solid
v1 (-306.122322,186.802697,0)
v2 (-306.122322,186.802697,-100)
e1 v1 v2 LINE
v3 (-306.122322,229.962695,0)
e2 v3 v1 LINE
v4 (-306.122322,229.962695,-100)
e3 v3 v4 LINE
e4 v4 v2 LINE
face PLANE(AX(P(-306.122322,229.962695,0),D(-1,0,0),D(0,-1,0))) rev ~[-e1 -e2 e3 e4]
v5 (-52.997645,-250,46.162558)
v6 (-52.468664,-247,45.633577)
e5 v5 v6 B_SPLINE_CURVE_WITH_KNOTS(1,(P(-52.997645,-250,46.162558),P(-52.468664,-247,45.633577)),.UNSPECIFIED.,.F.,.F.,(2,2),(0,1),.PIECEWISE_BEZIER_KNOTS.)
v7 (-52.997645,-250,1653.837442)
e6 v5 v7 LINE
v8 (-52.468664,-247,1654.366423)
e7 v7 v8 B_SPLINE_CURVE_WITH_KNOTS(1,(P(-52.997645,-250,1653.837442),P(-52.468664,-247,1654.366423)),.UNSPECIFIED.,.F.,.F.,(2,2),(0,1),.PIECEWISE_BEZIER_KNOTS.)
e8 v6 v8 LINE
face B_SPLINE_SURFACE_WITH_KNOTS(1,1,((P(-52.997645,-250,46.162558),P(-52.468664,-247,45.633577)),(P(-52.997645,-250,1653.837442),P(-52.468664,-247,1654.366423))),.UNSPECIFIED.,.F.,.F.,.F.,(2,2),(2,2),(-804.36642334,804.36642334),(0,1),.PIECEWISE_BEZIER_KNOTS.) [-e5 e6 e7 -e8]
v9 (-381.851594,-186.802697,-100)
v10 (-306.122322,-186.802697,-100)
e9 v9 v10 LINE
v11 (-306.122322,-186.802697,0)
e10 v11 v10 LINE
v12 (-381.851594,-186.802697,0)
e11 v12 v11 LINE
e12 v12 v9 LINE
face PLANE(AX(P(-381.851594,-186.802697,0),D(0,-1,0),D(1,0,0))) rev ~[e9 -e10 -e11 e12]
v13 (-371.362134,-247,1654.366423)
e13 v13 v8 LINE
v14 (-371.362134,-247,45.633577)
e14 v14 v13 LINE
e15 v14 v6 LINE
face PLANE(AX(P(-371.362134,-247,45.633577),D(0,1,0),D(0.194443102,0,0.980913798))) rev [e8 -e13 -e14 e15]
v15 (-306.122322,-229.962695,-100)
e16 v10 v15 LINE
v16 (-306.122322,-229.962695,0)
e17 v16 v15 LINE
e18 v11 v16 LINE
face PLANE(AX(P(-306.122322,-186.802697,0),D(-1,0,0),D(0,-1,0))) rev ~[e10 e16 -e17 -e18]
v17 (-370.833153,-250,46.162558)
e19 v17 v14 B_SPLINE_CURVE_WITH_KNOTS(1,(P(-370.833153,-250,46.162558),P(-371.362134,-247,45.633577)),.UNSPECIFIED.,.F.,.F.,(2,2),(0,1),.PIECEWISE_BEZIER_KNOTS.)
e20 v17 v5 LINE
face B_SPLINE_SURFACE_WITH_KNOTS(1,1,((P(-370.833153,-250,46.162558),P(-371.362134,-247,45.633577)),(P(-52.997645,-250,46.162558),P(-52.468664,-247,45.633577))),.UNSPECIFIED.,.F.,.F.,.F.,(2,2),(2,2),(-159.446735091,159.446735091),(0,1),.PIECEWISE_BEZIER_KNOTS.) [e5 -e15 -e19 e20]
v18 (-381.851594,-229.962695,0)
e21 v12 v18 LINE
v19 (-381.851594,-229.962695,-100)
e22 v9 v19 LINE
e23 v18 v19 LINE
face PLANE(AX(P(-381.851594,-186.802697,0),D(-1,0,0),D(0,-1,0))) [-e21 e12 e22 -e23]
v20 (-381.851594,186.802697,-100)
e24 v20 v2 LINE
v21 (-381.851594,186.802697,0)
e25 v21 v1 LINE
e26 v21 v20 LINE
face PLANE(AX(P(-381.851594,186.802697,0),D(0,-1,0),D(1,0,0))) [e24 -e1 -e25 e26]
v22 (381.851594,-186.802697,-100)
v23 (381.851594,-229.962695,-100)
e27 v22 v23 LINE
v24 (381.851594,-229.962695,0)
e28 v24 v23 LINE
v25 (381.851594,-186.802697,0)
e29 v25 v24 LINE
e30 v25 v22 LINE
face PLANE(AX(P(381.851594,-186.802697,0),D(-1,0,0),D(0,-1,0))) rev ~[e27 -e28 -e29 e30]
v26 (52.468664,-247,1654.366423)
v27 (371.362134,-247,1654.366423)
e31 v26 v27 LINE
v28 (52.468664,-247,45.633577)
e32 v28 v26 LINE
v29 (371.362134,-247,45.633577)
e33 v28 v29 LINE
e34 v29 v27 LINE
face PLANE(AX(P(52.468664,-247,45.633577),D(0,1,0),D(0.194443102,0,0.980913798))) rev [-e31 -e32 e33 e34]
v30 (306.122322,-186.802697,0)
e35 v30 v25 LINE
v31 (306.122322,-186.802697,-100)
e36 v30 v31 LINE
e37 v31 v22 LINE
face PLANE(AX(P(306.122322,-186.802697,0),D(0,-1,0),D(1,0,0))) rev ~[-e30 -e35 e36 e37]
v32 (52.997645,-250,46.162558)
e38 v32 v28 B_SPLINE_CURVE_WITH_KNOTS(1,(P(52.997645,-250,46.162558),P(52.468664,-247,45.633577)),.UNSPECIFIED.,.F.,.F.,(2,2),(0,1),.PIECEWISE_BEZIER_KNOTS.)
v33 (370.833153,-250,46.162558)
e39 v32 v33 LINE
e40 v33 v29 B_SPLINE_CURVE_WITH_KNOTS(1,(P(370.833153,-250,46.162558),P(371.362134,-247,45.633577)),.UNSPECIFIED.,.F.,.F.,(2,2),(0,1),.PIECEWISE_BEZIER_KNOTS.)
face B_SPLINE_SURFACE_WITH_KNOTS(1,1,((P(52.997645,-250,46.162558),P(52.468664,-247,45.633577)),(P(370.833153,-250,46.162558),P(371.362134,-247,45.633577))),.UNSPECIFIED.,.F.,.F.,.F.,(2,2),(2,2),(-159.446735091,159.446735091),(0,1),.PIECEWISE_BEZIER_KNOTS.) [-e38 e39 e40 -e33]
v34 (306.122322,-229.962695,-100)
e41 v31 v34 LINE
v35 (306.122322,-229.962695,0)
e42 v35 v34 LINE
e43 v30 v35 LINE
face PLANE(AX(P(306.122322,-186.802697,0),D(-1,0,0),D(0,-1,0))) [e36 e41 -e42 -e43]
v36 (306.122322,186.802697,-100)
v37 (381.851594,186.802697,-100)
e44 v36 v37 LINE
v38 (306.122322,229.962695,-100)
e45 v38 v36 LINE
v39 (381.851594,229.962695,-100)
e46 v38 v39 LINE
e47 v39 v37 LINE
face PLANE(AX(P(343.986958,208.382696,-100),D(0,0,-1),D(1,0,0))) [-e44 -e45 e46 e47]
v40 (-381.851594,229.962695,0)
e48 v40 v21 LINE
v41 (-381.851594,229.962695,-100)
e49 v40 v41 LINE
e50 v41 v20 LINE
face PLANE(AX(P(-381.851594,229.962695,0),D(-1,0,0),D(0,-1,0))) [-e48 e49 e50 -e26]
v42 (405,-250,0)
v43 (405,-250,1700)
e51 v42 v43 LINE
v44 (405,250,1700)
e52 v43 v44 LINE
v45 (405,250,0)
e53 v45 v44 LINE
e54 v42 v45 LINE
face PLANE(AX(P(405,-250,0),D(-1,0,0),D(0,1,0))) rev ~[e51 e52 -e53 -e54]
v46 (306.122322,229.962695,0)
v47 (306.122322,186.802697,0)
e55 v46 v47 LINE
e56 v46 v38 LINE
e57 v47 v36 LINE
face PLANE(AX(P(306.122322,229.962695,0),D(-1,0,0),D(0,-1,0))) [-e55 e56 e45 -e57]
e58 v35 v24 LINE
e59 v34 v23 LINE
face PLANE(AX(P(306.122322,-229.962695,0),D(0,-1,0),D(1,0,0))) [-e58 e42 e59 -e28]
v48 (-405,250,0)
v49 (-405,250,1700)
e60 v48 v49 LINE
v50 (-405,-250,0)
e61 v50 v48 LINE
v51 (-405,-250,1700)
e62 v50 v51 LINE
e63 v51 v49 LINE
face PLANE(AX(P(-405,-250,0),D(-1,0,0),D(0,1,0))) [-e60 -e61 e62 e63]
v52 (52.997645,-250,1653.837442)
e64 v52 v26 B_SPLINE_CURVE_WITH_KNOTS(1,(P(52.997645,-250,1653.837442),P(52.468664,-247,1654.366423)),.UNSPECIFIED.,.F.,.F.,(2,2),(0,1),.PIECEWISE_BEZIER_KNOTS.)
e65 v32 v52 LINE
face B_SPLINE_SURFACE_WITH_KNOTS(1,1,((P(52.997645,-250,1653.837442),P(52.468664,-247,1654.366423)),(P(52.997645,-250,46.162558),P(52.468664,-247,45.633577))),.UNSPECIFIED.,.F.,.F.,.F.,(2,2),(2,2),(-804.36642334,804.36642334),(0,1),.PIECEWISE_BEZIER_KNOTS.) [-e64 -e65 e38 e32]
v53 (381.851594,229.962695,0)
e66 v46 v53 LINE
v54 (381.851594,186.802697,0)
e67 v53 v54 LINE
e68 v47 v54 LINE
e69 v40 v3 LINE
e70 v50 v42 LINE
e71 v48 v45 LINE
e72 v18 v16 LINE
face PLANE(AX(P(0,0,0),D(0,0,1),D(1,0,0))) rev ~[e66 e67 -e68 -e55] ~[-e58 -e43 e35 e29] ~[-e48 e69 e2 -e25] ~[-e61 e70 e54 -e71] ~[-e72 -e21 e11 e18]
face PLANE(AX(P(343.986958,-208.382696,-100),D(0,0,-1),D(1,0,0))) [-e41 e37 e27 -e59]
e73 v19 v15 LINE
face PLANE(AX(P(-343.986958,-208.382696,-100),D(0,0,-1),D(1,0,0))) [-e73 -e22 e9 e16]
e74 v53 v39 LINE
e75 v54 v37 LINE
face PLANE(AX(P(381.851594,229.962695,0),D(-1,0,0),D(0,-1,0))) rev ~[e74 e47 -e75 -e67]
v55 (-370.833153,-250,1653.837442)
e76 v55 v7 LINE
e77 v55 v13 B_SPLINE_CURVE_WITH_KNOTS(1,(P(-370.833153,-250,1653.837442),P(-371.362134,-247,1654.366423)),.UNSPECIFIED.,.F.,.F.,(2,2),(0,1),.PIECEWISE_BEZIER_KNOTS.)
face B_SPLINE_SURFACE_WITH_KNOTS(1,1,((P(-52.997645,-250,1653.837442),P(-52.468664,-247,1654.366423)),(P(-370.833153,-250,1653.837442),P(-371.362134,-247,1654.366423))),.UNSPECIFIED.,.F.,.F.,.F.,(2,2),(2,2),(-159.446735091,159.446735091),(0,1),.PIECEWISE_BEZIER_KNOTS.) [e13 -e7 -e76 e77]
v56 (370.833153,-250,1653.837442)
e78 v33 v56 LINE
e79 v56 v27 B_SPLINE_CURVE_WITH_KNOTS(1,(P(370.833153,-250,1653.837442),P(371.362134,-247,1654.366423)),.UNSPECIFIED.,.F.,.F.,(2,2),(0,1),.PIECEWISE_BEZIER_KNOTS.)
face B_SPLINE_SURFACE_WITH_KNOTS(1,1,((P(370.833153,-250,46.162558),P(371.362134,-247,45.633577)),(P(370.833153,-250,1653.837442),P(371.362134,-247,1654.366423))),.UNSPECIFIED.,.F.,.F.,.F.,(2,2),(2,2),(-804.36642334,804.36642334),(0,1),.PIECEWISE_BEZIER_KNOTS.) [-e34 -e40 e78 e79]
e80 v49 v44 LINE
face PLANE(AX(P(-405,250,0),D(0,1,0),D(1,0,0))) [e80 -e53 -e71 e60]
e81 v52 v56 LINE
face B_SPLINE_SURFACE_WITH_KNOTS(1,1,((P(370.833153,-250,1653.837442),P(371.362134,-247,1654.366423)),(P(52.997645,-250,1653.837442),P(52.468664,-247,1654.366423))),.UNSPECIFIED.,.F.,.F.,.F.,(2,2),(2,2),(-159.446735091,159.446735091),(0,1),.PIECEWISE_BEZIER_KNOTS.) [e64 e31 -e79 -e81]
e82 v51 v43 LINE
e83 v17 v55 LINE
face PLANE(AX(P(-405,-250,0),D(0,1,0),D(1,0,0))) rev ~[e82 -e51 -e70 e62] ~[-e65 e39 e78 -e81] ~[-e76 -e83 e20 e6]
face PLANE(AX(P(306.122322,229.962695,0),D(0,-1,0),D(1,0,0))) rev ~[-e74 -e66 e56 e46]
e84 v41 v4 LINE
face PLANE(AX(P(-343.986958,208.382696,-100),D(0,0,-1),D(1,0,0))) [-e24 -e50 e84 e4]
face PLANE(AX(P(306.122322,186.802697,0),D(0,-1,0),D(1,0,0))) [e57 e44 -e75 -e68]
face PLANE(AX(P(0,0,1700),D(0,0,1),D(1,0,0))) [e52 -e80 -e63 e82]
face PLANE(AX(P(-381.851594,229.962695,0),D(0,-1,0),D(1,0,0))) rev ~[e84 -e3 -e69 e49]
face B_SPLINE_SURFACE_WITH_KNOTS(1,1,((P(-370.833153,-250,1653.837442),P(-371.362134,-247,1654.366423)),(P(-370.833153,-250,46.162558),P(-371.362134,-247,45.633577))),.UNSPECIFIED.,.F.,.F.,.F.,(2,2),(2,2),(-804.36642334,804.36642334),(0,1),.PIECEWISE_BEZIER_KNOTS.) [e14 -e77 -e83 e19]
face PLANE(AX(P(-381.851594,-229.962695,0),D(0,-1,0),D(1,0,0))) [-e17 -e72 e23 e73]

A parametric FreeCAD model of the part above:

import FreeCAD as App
import Part
import Sketcher
Q = App.Units.Quantity


def add_polygon(sketch, points):
    """Adds a closed chain of lines whose ends are joined by coincident constraints."""
    first, n = sketch.GeometryCount, len(points)
    for a, b in zip(points, points[1:] + points[:1]):
        sketch.addGeometry(Part.LineSegment(App.Vector(*a, 0), App.Vector(*b, 0)), False)
    for i in range(n):
        sketch.addConstraint(Sketcher.Constraint("Coincident", first + i, 2, first + (i + 1) % n, 1))

doc = App.newDocument("Part")
body = doc.addObject("PartDesign::Body", "Body")

sketch1 = doc.addObject("Sketcher::SketchObject", "Sketch")
body.addObject(sketch1)
sketch1.AttachmentSupport = (doc.XY_Plane, [""])
sketch1.MapMode = "FlatFace"
add_polygon(sketch1, [(-405, 250), (-405, -250), (405, -250), (405, 250)])
sketch1.addConstraint(Sketcher.Constraint("Vertical", 0))
sketch1.addConstraint(Sketcher.Constraint("Horizontal", 1))
sketch1.addConstraint(Sketcher.Constraint("Vertical", 2))
sketch1.addConstraint(Sketcher.Constraint("Horizontal", 3))
sketch1.addConstraint(Sketcher.Constraint("Symmetric", 0, 2, 2, 2, -1, 1))
sketch1.addConstraint(Sketcher.Constraint("DistanceX", 1, 1, 1, 2, Q("810 mm")))
sketch1.addConstraint(Sketcher.Constraint("DistanceY", 0, 2, 0, 1, Q("500 mm")))
pad1 = doc.addObject("PartDesign::Pad", "Pad")
body.addObject(pad1)
pad1.Profile = sketch1
pad1.Length = 1700

sketch2 = doc.addObject("Sketcher::SketchObject", "Sketch001")
body.addObject(sketch2)
sketch2.AttachmentSupport = (doc.XY_Plane, [""])
sketch2.MapMode = "FlatFace"
add_polygon(sketch2, [(-382, -230), (-382, -187), (-306, -187), (-306, -230)])
add_polygon(sketch2, [(306, -230), (306, -187), (382, -187), (382, -230)])
add_polygon(sketch2, [(306, 187), (306, 230), (382, 230), (382, 187)])
add_polygon(sketch2, [(-382, 187), (-382, 230), (-306, 230), (-306, 187)])
sketch2.addConstraint(Sketcher.Constraint("Vertical", 0))
sketch2.addConstraint(Sketcher.Constraint("Horizontal", 1))
sketch2.addConstraint(Sketcher.Constraint("Vertical", 2))
sketch2.addConstraint(Sketcher.Constraint("Horizontal", 3))
sketch2.addConstraint(Sketcher.Constraint("Vertical", 4))
sketch2.addConstraint(Sketcher.Constraint("Horizontal", 5))
sketch2.addConstraint(Sketcher.Constraint("Vertical", 6))
sketch2.addConstraint(Sketcher.Constraint("Horizontal", 7))
sketch2.addConstraint(Sketcher.Constraint("Vertical", 8))
sketch2.addConstraint(Sketcher.Constraint("Horizontal", 9))
sketch2.addConstraint(Sketcher.Constraint("Vertical", 10))
sketch2.addConstraint(Sketcher.Constraint("Horizontal", 11))
sketch2.addConstraint(Sketcher.Constraint("Vertical", 12))
sketch2.addConstraint(Sketcher.Constraint("Horizontal", 13))
sketch2.addConstraint(Sketcher.Constraint("Vertical", 14))
sketch2.addConstraint(Sketcher.Constraint("Horizontal", 15))
sketch2.addConstraint(Sketcher.Constraint("Symmetric", 2, 2, 8, 2, -1, 1))
sketch2.addConstraint(Sketcher.Constraint("Symmetric", 0, 2, 10, 2, -1, 1))
sketch2.addConstraint(Sketcher.Constraint("Symmetric", 6, 2, 12, 2, -1, 1))
sketch2.addConstraint(Sketcher.Constraint("Symmetric", 4, 2, 14, 2, -1, 1))
sketch2.addConstraint(Sketcher.Constraint("Symmetric", 1, 2, 4, 2, -2))
sketch2.addConstraint(Sketcher.Constraint("Symmetric", 3, 2, 6, 2, -2))
sketch2.addConstraint(Sketcher.Constraint("DistanceX", 1, 1, 1, 2, Q("75.729272 mm")))
sketch2.addConstraint(Sketcher.Constraint("DistanceY", 0, 1, 0, 2, Q("43.159997 mm")))
sketch2.addConstraint(Sketcher.Constraint("DistanceX", 0, 2, 5, 2, Q("763.703188 mm")))
sketch2.addConstraint(Sketcher.Constraint("DistanceY", 4, 2, 8, 2, Q("416.765392 mm")))
pad2 = doc.addObject("PartDesign::Pad", "Pad001")
body.addObject(pad2)
pad2.Profile = sketch2
pad2.Length = 100
pad2.Reversed = True

sketch3 = doc.addObject("Sketcher::SketchObject", "Sketch002")
body.addObject(sketch3)
sketch3.AttachmentSupport = (doc.XZ_Plane, [""])
sketch3.MapMode = "FlatFace"
sketch3.AttachmentOffset = App.Placement(App.Vector(0, 0, 250), App.Rotation())
add_polygon(sketch3, [(-371, 1654), (-371, 46), (-53, 46), (-53, 1654)])
add_polygon(sketch3, [(53, 1654), (53, 46), (371, 46), (371, 1654)])
sketch3.addConstraint(Sketcher.Constraint("Vertical", 0))
sketch3.addConstraint(Sketcher.Constraint("Horizontal", 1))
sketch3.addConstraint(Sketcher.Constraint("Vertical", 2))
sketch3.addConstraint(Sketcher.Constraint("Horizontal", 3))
sketch3.addConstraint(Sketcher.Constraint("Vertical", 4))
sketch3.addConstraint(Sketcher.Constraint("Horizontal", 5))
sketch3.addConstraint(Sketcher.Constraint("Vertical", 6))
sketch3.addConstraint(Sketcher.Constraint("Horizontal", 7))
sketch3.addConstraint(Sketcher.Constraint("Symmetric", 1, 2, 4, 2, -2))
sketch3.addConstraint(Sketcher.Constraint("Symmetric", 3, 2, 6, 2, -2))
sketch3.addConstraint(Sketcher.Constraint("DistanceX", 1, 1, 1, 2, Q("317.835508 mm")))
sketch3.addConstraint(Sketcher.Constraint("DistanceX", 0, 2, 4, 2, Q("423.830798 mm")))
sketch3.addConstraint(Sketcher.Constraint("DistanceY", 0, 2, 0, 1, Q("1607.674885 mm")))
sketch3.addConstraint(Sketcher.Constraint("DistanceY", -1, 1, 0, 2, Q("46.162558 mm")))
pocket1 = doc.addObject("PartDesign::Pocket", "Pocket")
body.addObject(pocket1)
pocket1.Profile = sketch3
pocket1.Length = 3
pocket1.TaperAngle = 10

doc.recompute()
